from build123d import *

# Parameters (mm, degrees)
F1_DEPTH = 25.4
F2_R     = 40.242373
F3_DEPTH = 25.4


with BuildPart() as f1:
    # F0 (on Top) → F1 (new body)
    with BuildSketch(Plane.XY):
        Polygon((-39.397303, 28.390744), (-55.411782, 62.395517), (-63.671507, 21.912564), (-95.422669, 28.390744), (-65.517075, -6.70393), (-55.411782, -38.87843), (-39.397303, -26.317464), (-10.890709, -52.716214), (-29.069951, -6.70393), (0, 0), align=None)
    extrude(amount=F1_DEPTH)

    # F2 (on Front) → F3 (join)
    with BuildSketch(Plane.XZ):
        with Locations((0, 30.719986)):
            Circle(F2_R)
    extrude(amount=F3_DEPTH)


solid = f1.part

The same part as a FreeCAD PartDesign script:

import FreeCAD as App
import Part
import Sketcher
from FreeCAD import Vector
Q = App.Units.Quantity


def add_polygon(sketch, points):
    """Adds a closed chain of lines whose ends are joined by coincident constraints."""
    first, n = sketch.GeometryCount, len(points)
    for a, b in zip(points, points[1:] + points[:1]):
        sketch.addGeometry(Part.LineSegment(App.Vector(*a, 0), App.Vector(*b, 0)), False)
    for i in range(n):
        sketch.addConstraint(Sketcher.Constraint("Coincident", first + i, 2, first + (i + 1) % n, 1))

doc = App.newDocument("Part")
body = doc.addObject("PartDesign::Body", "Body")

sketch1 = body.newObject("Sketcher::SketchObject", "Sketch")
sketch1.AttachmentSupport = (doc.getObject("XY_Plane"), [""])
sketch1.MapMode = "FlatFace"
add_polygon(sketch1, [(-39, 28), (-55, 62), (-64, 22), (-95, 28), (-66, -7), (-55, -39), (-39, -26), (-11, -53), (-29, -7), (0, 0)])
sketch1.addConstraint([
    Sketcher.Constraint("Coincident", 8, 2, -1, 1),
    Sketcher.Constraint("Perpendicular", 1, 2),
    Sketcher.Constraint("Horizontal", 3, 2, 7, 2),
    Sketcher.Constraint("Horizontal", 2, 2, 9, 2),
    Sketcher.Constraint("Vertical", 0, 2, 4, 2),
    Sketcher.Constraint("Vertical", 5, 2, 9, 2),
    Sketcher.Constraint("DistanceY", 4, 2, 3, 2, 32.1745),
    Sketcher.Constraint("Distance", 3, 46.108358),
    Sketcher.Constraint("Distance", 5, 20.352921),
    Sketcher.Constraint("Distance", 6, 38.85254),
    Sketcher.Constraint("DistanceX", 2, 2, -1, 1, 95.422669),
    Sketcher.Constraint("DistanceY", 3, 2, -1, 1, 6.70393),
    Sketcher.Constraint("DistanceX", 6, 2, -1, 1, 10.890709),
    Sketcher.Constraint("DistanceX", 7, 2, -1, 1, 29.069951),
    Sketcher.Constraint("DistanceY", 1, 2, 2, 2, 6.47818),
    Sketcher.Constraint("DistanceX", 3, 2, 1, 2, 1.845568),
    Sketcher.Constraint("DistanceX", 4, 2, 5, 2, 16.014479),
    Sketcher.Constraint("DistanceY", 5, 2, 1, 2, 48.230028),
    Sketcher.Constraint("DistanceY", 5, 2, 0, 2, 88.712981),
])
pad1 = body.newObject("PartDesign::Pad", "Pad")
pad1.Profile = sketch1
pad1.Length = Q("1 in")

sketch2 = body.newObject("Sketcher::SketchObject", "Sketch001")
sketch2.AttachmentSupport = (doc.getObject("XZ_Plane"), [""])
sketch2.MapMode = "FlatFace"
sketch2.addGeometry(Part.Circle(Vector(0, 31, 0), Vector(0, 0, 1), 40), False)
sketch2.addConstraint([
    Sketcher.Constraint("PointOnObject", 0, 3, -2),
    Sketcher.Constraint("Diameter", 0, 80.484746),
    Sketcher.Constraint("DistanceY", -1, 1, 0, 3, 30.719986),
])
pad2 = body.newObject("PartDesign::Pad", "Pad001")
pad2.Profile = sketch2
pad2.Length = Q("1 in")

doc.recompute()
